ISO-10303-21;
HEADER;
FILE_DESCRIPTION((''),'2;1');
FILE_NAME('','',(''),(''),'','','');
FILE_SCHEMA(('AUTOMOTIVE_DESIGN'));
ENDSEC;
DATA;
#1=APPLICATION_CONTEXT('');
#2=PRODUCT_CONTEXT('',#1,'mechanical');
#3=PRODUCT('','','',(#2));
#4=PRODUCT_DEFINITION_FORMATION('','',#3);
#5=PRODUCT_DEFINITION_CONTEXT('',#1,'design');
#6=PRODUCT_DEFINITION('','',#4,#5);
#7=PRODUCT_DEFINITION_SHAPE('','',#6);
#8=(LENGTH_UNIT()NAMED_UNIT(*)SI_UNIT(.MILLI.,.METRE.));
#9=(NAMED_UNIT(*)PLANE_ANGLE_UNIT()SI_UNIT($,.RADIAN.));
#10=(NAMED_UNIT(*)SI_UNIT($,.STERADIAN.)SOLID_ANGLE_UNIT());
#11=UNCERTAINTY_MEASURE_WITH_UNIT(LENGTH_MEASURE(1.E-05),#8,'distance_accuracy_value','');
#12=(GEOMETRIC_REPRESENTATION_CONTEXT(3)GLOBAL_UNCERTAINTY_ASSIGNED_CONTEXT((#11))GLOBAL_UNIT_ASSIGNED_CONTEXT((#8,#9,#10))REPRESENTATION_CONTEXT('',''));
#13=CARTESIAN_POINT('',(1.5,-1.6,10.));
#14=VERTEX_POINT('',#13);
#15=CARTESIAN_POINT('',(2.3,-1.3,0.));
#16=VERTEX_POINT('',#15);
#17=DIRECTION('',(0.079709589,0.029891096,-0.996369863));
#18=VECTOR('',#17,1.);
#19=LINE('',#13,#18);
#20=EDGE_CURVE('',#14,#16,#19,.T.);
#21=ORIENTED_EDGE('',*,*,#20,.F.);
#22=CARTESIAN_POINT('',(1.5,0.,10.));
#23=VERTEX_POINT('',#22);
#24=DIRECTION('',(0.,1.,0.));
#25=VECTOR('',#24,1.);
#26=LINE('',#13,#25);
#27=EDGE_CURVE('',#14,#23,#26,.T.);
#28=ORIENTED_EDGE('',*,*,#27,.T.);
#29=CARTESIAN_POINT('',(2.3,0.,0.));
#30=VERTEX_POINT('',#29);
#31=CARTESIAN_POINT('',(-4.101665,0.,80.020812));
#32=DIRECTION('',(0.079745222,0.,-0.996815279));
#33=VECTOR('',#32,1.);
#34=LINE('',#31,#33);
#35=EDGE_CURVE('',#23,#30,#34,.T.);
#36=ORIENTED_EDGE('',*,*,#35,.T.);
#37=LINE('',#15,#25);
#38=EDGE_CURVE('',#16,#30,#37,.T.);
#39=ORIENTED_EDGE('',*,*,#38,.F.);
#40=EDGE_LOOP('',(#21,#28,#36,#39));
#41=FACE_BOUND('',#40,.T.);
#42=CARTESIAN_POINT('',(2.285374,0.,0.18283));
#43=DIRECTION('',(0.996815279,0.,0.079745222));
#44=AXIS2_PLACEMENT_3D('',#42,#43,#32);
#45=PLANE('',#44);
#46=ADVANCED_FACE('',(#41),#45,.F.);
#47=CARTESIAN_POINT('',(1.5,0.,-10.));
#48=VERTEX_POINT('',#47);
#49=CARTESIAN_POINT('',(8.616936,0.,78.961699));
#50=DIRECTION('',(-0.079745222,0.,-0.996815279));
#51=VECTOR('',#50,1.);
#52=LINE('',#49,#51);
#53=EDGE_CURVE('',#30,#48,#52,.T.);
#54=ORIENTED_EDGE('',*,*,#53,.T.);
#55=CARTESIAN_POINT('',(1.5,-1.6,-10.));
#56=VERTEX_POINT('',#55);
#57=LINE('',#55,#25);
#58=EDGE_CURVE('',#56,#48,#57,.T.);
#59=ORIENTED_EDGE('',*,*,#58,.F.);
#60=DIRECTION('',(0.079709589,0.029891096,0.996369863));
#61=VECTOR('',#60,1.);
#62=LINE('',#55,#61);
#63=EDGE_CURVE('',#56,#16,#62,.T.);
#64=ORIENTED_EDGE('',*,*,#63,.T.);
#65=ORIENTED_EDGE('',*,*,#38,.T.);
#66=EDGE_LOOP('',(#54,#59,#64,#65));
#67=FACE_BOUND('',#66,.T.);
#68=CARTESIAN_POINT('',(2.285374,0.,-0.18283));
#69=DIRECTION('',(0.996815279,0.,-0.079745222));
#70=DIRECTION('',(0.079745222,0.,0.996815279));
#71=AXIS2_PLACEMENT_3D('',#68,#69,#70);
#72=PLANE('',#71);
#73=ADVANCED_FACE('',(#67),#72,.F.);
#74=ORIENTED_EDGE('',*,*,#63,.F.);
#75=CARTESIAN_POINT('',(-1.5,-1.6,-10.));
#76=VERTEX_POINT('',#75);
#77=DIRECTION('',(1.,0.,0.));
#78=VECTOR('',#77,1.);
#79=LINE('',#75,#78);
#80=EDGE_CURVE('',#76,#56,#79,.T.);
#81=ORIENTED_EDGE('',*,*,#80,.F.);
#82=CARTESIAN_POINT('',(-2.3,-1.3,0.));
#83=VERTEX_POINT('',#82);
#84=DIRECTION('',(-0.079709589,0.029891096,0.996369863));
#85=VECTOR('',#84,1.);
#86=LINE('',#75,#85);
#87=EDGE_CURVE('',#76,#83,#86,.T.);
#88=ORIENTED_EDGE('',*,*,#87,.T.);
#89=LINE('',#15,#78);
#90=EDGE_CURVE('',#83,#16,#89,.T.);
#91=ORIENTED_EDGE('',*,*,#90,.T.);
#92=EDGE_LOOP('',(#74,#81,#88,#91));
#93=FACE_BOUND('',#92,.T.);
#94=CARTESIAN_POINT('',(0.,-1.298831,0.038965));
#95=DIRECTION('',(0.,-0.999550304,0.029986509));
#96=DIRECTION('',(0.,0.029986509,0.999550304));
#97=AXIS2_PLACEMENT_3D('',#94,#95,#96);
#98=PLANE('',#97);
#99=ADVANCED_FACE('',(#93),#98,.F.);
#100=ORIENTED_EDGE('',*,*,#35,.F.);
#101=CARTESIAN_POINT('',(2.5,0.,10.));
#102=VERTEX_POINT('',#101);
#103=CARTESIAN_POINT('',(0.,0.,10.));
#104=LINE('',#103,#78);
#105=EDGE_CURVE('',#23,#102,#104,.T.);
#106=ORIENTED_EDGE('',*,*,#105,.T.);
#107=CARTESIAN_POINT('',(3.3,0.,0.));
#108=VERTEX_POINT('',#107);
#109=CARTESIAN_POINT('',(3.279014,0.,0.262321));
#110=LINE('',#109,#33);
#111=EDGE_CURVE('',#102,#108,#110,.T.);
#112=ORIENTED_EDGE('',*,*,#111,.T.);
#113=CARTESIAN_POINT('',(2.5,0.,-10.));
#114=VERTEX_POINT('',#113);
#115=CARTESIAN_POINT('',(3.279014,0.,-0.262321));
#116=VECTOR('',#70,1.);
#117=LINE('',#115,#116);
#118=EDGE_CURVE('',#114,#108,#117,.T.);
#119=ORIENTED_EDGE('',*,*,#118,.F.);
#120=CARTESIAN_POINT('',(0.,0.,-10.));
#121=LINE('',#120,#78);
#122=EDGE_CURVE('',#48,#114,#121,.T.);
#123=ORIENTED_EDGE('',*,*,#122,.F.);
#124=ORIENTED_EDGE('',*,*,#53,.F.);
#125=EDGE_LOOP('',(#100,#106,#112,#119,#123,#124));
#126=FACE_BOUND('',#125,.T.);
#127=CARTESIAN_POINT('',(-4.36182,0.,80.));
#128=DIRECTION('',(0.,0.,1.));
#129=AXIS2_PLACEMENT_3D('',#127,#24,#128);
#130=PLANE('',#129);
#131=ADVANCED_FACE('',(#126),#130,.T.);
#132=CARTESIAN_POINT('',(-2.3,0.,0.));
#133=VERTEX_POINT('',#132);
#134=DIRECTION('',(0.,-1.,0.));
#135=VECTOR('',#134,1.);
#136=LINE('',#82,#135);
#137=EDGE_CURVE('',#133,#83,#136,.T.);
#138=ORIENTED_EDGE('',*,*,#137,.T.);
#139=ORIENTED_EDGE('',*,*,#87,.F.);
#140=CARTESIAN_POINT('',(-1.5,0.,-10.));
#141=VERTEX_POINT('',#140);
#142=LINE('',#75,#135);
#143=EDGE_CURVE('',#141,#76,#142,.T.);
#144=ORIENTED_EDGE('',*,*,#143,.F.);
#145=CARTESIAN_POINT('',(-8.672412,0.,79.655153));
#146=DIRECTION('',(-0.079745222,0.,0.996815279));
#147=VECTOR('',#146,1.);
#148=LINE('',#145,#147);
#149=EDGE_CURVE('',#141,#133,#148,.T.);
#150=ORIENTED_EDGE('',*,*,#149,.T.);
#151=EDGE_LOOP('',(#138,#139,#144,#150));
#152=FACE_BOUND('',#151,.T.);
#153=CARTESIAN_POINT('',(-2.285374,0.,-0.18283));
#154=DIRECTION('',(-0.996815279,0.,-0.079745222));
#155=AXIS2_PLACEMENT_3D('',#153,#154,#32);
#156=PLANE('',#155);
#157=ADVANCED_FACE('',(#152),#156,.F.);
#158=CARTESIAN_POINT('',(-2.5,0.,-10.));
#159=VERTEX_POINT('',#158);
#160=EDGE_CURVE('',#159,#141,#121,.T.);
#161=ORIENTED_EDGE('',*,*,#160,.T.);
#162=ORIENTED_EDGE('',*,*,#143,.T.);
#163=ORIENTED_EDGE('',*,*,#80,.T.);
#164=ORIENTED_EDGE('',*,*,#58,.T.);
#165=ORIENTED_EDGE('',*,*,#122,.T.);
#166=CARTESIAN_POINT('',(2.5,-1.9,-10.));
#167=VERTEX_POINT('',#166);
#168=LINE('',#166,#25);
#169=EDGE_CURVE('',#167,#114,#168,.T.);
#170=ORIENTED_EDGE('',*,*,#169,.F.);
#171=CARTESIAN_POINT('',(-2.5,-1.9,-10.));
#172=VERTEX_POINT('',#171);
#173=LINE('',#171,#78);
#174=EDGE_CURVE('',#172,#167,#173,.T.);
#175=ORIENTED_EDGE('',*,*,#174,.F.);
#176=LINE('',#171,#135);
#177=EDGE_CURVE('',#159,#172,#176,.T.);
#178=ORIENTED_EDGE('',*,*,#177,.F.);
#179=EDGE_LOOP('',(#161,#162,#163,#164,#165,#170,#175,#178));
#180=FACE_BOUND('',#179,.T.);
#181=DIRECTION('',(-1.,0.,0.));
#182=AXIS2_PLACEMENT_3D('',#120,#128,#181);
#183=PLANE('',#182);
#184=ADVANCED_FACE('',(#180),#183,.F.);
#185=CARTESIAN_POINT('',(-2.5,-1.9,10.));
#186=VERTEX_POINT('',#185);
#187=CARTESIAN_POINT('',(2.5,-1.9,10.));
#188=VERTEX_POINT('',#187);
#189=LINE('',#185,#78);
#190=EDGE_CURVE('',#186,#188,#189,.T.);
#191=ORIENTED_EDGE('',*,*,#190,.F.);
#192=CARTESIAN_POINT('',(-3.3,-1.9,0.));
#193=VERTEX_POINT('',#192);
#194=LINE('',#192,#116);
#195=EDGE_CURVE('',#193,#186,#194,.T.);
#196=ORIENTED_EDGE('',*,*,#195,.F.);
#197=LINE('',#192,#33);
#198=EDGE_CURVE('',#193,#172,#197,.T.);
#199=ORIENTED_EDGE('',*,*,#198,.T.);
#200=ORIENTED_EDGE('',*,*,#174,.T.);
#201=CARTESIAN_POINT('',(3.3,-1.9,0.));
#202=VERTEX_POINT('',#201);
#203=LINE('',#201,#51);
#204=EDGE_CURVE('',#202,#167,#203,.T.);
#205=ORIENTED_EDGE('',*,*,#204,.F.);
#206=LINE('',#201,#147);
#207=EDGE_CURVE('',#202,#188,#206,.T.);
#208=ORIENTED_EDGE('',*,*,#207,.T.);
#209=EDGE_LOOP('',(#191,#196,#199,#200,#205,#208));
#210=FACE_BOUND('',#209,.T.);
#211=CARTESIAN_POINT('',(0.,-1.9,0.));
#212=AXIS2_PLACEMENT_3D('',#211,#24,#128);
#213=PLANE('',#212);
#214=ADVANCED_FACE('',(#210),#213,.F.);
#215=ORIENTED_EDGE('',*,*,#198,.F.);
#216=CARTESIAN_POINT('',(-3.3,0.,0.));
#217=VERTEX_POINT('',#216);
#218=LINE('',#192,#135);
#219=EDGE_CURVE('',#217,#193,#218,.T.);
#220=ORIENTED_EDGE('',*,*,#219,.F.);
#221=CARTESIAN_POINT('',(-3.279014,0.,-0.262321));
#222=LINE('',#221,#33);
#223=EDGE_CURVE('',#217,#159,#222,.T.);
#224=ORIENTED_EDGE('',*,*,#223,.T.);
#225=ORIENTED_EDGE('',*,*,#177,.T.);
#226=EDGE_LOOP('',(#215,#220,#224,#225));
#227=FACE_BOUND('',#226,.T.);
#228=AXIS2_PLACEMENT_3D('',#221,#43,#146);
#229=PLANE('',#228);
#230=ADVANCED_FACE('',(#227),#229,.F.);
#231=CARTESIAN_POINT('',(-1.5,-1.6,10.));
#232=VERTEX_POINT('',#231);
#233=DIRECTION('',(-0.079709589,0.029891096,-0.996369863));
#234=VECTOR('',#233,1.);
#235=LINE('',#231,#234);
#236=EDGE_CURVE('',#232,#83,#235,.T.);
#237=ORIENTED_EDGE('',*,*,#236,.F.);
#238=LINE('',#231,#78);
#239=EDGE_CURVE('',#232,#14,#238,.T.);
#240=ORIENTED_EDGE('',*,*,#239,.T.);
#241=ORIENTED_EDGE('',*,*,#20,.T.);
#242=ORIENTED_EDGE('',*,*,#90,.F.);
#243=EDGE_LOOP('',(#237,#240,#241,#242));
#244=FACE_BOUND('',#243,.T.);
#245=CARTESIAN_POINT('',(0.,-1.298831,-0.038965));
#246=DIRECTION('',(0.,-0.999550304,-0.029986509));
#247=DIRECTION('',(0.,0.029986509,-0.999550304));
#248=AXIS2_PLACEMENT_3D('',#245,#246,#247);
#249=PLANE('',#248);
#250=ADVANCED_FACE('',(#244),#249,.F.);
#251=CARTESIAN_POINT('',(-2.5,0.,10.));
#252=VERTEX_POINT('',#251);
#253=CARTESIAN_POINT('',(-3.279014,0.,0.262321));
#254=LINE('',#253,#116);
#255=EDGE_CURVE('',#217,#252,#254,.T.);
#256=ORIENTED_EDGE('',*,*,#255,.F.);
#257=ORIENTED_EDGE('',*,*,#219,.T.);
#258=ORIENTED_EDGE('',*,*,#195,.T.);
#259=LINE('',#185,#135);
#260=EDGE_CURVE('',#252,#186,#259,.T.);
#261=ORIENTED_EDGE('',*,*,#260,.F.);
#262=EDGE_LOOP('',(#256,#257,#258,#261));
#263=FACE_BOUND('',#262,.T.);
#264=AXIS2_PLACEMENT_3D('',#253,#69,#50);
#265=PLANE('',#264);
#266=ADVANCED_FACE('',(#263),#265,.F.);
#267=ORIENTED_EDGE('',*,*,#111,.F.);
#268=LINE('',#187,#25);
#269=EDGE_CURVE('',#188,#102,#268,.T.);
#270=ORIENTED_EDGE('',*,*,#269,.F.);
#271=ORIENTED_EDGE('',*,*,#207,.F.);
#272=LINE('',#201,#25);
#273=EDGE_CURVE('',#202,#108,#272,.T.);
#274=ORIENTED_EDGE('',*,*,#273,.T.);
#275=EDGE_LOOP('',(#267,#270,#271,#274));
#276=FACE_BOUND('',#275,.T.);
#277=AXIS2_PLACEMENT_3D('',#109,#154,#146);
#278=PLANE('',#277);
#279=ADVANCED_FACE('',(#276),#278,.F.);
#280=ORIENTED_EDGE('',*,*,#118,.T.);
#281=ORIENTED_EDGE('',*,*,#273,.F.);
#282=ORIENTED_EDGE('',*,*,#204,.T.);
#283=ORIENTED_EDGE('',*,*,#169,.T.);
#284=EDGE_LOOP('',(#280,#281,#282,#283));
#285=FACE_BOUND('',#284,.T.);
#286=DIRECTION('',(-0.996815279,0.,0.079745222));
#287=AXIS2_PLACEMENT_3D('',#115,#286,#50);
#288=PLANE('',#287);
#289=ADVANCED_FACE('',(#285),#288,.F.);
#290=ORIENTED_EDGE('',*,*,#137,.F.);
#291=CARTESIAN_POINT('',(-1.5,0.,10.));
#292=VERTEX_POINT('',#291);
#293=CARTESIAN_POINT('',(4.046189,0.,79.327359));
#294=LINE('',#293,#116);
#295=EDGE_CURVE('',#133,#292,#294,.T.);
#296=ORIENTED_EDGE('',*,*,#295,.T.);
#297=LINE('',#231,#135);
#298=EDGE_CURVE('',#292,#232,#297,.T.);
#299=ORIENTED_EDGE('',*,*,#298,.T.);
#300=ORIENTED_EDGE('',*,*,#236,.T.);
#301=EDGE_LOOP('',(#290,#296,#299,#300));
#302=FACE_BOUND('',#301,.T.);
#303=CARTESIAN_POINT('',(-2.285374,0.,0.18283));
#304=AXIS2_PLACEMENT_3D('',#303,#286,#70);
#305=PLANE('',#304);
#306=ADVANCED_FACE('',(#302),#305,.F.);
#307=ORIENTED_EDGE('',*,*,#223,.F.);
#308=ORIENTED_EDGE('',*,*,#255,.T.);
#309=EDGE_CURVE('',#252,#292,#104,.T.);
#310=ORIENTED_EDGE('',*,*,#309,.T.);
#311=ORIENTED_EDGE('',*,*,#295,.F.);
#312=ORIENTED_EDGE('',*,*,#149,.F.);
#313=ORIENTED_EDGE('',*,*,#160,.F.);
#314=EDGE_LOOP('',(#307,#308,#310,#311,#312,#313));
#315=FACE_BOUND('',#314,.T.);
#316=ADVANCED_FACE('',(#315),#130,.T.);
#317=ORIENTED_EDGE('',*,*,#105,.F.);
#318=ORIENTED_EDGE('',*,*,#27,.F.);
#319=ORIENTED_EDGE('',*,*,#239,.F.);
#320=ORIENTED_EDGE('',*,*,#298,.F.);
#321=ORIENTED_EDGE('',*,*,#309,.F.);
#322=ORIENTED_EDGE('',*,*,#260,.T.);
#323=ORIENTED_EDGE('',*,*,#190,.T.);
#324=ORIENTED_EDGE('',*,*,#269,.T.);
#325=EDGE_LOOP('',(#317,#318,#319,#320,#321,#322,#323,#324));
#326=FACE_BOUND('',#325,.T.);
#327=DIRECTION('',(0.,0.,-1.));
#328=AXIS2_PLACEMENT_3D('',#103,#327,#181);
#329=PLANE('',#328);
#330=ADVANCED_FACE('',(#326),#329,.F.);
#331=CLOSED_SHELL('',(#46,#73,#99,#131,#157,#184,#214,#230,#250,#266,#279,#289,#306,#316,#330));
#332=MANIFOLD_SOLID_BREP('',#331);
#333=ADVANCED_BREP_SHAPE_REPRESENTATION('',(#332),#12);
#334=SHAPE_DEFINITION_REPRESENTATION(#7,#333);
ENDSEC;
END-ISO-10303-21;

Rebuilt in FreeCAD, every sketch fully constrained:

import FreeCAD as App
import Part
import Sketcher
from FreeCAD import Vector
Q = App.Units.Quantity


def add_polygon(sketch, points):
    """Adds a closed chain of lines whose ends are joined by coincident constraints."""
    first, n = sketch.GeometryCount, len(points)
    for a, b in zip(points, points[1:] + points[:1]):
        sketch.addGeometry(Part.LineSegment(App.Vector(*a, 0), App.Vector(*b, 0)), False)
    for i in range(n):
        sketch.addConstraint(Sketcher.Constraint("Coincident", first + i, 2, first + (i + 1) % n, 1))

doc = App.newDocument("Part")
params = doc.addObject("Spreadsheet::Sheet", "Params")
for row, (alias, value) in enumerate([
    ("sketch1_width", "6.6 mm"),
    ("sketch1_height", "3.8 mm"),
    ("sketch2_width", "5 mm"),
    ("sketch2_height", "3.8 mm"),
    ("pocket1_length", "80 mm"),
    ("sketch4_width", "3 mm"),
    ("sketch4_height", "3.2 mm"),
    ("sketch5_width", "4.6 mm"),
    ("sketch5_height", "2.6 mm"),
], start=1):
    params.set(f"A{row}", alias)
    params.set(f"B{row}", "=" + value)
    params.setAlias(f"B{row}", alias)

body = doc.addObject("PartDesign::Body", "Body")

# Sketch on XY plane
sketch1 = body.newObject("Sketcher::SketchObject", "Sketch")
sketch1.AttachmentSupport = (doc.getObject("XY_Plane"), [""])
sketch1.MapMode = "FlatFace"
add_polygon(sketch1, [(-3.3, -1.9), (3.3, -1.9), (3.3, 1.9), (-3.3, 1.9)])  # lines 0-3
sketch1.addConstraint([
    Sketcher.Constraint("Horizontal", 0),
    Sketcher.Constraint("Vertical", 1),
    Sketcher.Constraint("Horizontal", 2),
    Sketcher.Constraint("Vertical", 3),
    Sketcher.Constraint("Symmetric", 0, 2, 2, 2, -1, 1),
    Sketcher.Constraint("DistanceX", 0, 1, 0, 2, Q("6.6 mm")),
    Sketcher.Constraint("DistanceY", 1, 1, 1, 2, Q("3.8 mm")),
])
sketch1.setExpression("Constraints[9]", "Params.sketch1_width")
sketch1.setExpression("Constraints[10]", "Params.sketch1_height")

# Sketch on XY plane
sketch2 = body.newObject("Sketcher::SketchObject", "Sketch001")
sketch2.AttachmentSupport = (doc.getObject("XY_Plane"), [""])
sketch2.MapMode = "FlatFace"
sketch2.AttachmentOffset = App.Placement(Vector(0, 0, 10), App.Rotation())
add_polygon(sketch2, [(-2.5, -1.9), (2.5, -1.9), (2.5, 1.9), (-2.5, 1.9)])  # lines 0-3
sketch2.addConstraint([
    Sketcher.Constraint("Horizontal", 0),
    Sketcher.Constraint("Vertical", 1),
    Sketcher.Constraint("Horizontal", 2),
    Sketcher.Constraint("Vertical", 3),
    Sketcher.Constraint("Symmetric", 0, 2, 2, 2, -1, 1),
    Sketcher.Constraint("DistanceX", 0, 1, 0, 2, Q("5 mm")),
    Sketcher.Constraint("DistanceY", 1, 1, 1, 2, Q("3.8 mm")),
])
sketch2.setExpression("Constraints[9]", "Params.sketch2_width")
sketch2.setExpression("Constraints[10]", "Params.sketch2_height")

additiveloft = body.newObject("PartDesign::AdditiveLoft", "AdditiveLoft")
additiveloft.Profile = sketch1
additiveloft.Sections = [sketch2]

# Sketch on XY plane
sketch3 = body.newObject("Sketcher::SketchObject", "Sketch002")
sketch3.AttachmentSupport = (doc.getObject("XY_Plane"), [""])
sketch3.MapMode = "FlatFace"
add_polygon(sketch3, [(-4.36182, 3.779397), (-4.36182, 0), (6.339451, 0), (6.339451, 3.779397)])  # lines 0-3
sketch3.addConstraint([
    Sketcher.Constraint("Vertical", 0),
    Sketcher.Constraint("Horizontal", 1),
    Sketcher.Constraint("Vertical", 2),
    Sketcher.Constraint("Horizontal", 3),
    Sketcher.Constraint("PointOnObject", 0, 2, -1),
    Sketcher.Constraint("DistanceX", 1, 1, 1, 2, Q("10.701271 mm")),
    Sketcher.Constraint("DistanceY", 0, 2, 0, 1, Q("3.779397 mm")),
    Sketcher.Constraint("DistanceX", 0, 2, -1, 1, Q("4.36182 mm")),
])
pocket1 = body.newObject("PartDesign::Pocket", "Pocket")
pocket1.Profile = sketch3
pocket1.setExpression("Length", "Params.pocket1_length")
pocket1.Reversed = True

# Sketch on XY plane
sketch4 = body.newObject("Sketcher::SketchObject", "Sketch003")
sketch4.AttachmentSupport = (doc.getObject("XY_Plane"), [""])
sketch4.MapMode = "FlatFace"
sketch4.AttachmentOffset = App.Placement(Vector(0, 0, 10), App.Rotation())
add_polygon(sketch4, [(-1.5, -1.6), (1.5, -1.6), (1.5, 1.6), (-1.5, 1.6)])  # lines 0-3
sketch4.addConstraint([
    Sketcher.Constraint("Horizontal", 0),
    Sketcher.Constraint("Vertical", 1),
    Sketcher.Constraint("Horizontal", 2),
    Sketcher.Constraint("Vertical", 3),
    Sketcher.Constraint("Symmetric", 0, 2, 2, 2, -1, 1),
    Sketcher.Constraint("DistanceX", 0, 1, 0, 2, Q("3 mm")),
    Sketcher.Constraint("DistanceY", 1, 1, 1, 2, Q("3.2 mm")),
])
sketch4.setExpression("Constraints[9]", "Params.sketch4_width")
sketch4.setExpression("Constraints[10]", "Params.sketch4_height")

# Sketch on XY plane
sketch5 = body.newObject("Sketcher::SketchObject", "Sketch004")
sketch5.AttachmentSupport = (doc.getObject("XY_Plane"), [""])
sketch5.MapMode = "FlatFace"
add_polygon(sketch5, [(-2.3, -1.3), (2.3, -1.3), (2.3, 1.3), (-2.3, 1.3)])  # lines 0-3
sketch5.addConstraint([
    Sketcher.Constraint("Horizontal", 0),
    Sketcher.Constraint("Vertical", 1),
    Sketcher.Constraint("Horizontal", 2),
    Sketcher.Constraint("Vertical", 3),
    Sketcher.Constraint("Symmetric", 0, 2, 2, 2, -1, 1),
    Sketcher.Constraint("DistanceX", 0, 1, 0, 2, Q("4.6 mm")),
    Sketcher.Constraint("DistanceY", 1, 1, 1, 2, Q("2.6 mm")),
])
sketch5.setExpression("Constraints[9]", "Params.sketch5_width")
sketch5.setExpression("Constraints[10]", "Params.sketch5_height")

subtractiveloft = body.newObject("PartDesign::SubtractiveLoft", "SubtractiveLoft")
subtractiveloft.Profile = sketch4
subtractiveloft.Sections = [sketch5]
doc.recompute()

mirrored = body.newObject("PartDesign::Mirrored", "Mirrored")
mirrored.Originals = [additiveloft]
mirrored.MirrorPlane = (doc.getObject("XY_Plane"), [""])
body.Tip = mirrored
doc.recompute()

mirrored2 = body.newObject("PartDesign::Mirrored", "Mirrored001")
mirrored2.Originals = [pocket1]
mirrored2.MirrorPlane = (doc.getObject("XY_Plane"), [""])
body.Tip = mirrored2
doc.recompute()

mirrored3 = body.newObject("PartDesign::Mirrored", "Mirrored002")
mirrored3.Originals = [subtractiveloft]
mirrored3.MirrorPlane = (doc.getObject("XY_Plane"), [""])
body.Tip = mirrored3

doc.recompute()
